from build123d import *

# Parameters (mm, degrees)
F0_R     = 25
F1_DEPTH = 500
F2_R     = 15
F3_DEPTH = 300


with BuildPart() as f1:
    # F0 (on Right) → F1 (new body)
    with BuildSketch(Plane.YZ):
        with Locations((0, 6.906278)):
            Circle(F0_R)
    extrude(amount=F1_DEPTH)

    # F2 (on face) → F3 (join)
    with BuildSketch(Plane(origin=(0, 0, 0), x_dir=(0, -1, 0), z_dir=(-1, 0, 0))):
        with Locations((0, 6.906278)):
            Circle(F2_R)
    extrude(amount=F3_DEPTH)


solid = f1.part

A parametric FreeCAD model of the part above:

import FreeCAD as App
import Part
import Sketcher

doc = App.newDocument("Part")
body = doc.addObject("PartDesign::Body", "Body")

# Sketch on YZ plane
sketch1 = body.newObject("Sketcher::SketchObject", "Sketch")
sketch1.AttachmentSupport = (doc.getObject("YZ_Plane"), [""])
sketch1.MapMode = "FlatFace"
sketch1.addGeometry(Part.Circle(App.Vector(0, 7, 0), App.Vector(0, 0, 1), 25), False)
sketch1.addConstraint(Sketcher.Constraint("PointOnObject", 0, 3, -2))
sketch1.addConstraint(Sketcher.Constraint("Diameter", 0, 50.0))
sketch1.addConstraint(Sketcher.Constraint("DistanceY", -1, 1, 0, 3, 6.906278))
pad1 = body.newObject("PartDesign::Pad", "Pad")
pad1.Profile = sketch1
pad1.Length = 500

# Sketch on YZ plane
sketch2 = body.newObject("Sketcher::SketchObject", "Sketch001")
sketch2.AttachmentSupport = (doc.getObject("YZ_Plane"), [""])
sketch2.MapMode = "FlatFace"
sketch2.addGeometry(Part.Circle(App.Vector(0, 7, 0), App.Vector(0, 0, 1), 15), False)
sketch2.addConstraint(Sketcher.Constraint("PointOnObject", 0, 3, -2))
sketch2.addConstraint(Sketcher.Constraint("Diameter", 0, 30.0))
sketch2.addConstraint(Sketcher.Constraint("DistanceY", -1, 1, 0, 3, 6.906278))
pad2 = body.newObject("PartDesign::Pad", "Pad001")
pad2.Profile = sketch2
pad2.Length = 300
pad2.Reversed = True

doc.recompute()
